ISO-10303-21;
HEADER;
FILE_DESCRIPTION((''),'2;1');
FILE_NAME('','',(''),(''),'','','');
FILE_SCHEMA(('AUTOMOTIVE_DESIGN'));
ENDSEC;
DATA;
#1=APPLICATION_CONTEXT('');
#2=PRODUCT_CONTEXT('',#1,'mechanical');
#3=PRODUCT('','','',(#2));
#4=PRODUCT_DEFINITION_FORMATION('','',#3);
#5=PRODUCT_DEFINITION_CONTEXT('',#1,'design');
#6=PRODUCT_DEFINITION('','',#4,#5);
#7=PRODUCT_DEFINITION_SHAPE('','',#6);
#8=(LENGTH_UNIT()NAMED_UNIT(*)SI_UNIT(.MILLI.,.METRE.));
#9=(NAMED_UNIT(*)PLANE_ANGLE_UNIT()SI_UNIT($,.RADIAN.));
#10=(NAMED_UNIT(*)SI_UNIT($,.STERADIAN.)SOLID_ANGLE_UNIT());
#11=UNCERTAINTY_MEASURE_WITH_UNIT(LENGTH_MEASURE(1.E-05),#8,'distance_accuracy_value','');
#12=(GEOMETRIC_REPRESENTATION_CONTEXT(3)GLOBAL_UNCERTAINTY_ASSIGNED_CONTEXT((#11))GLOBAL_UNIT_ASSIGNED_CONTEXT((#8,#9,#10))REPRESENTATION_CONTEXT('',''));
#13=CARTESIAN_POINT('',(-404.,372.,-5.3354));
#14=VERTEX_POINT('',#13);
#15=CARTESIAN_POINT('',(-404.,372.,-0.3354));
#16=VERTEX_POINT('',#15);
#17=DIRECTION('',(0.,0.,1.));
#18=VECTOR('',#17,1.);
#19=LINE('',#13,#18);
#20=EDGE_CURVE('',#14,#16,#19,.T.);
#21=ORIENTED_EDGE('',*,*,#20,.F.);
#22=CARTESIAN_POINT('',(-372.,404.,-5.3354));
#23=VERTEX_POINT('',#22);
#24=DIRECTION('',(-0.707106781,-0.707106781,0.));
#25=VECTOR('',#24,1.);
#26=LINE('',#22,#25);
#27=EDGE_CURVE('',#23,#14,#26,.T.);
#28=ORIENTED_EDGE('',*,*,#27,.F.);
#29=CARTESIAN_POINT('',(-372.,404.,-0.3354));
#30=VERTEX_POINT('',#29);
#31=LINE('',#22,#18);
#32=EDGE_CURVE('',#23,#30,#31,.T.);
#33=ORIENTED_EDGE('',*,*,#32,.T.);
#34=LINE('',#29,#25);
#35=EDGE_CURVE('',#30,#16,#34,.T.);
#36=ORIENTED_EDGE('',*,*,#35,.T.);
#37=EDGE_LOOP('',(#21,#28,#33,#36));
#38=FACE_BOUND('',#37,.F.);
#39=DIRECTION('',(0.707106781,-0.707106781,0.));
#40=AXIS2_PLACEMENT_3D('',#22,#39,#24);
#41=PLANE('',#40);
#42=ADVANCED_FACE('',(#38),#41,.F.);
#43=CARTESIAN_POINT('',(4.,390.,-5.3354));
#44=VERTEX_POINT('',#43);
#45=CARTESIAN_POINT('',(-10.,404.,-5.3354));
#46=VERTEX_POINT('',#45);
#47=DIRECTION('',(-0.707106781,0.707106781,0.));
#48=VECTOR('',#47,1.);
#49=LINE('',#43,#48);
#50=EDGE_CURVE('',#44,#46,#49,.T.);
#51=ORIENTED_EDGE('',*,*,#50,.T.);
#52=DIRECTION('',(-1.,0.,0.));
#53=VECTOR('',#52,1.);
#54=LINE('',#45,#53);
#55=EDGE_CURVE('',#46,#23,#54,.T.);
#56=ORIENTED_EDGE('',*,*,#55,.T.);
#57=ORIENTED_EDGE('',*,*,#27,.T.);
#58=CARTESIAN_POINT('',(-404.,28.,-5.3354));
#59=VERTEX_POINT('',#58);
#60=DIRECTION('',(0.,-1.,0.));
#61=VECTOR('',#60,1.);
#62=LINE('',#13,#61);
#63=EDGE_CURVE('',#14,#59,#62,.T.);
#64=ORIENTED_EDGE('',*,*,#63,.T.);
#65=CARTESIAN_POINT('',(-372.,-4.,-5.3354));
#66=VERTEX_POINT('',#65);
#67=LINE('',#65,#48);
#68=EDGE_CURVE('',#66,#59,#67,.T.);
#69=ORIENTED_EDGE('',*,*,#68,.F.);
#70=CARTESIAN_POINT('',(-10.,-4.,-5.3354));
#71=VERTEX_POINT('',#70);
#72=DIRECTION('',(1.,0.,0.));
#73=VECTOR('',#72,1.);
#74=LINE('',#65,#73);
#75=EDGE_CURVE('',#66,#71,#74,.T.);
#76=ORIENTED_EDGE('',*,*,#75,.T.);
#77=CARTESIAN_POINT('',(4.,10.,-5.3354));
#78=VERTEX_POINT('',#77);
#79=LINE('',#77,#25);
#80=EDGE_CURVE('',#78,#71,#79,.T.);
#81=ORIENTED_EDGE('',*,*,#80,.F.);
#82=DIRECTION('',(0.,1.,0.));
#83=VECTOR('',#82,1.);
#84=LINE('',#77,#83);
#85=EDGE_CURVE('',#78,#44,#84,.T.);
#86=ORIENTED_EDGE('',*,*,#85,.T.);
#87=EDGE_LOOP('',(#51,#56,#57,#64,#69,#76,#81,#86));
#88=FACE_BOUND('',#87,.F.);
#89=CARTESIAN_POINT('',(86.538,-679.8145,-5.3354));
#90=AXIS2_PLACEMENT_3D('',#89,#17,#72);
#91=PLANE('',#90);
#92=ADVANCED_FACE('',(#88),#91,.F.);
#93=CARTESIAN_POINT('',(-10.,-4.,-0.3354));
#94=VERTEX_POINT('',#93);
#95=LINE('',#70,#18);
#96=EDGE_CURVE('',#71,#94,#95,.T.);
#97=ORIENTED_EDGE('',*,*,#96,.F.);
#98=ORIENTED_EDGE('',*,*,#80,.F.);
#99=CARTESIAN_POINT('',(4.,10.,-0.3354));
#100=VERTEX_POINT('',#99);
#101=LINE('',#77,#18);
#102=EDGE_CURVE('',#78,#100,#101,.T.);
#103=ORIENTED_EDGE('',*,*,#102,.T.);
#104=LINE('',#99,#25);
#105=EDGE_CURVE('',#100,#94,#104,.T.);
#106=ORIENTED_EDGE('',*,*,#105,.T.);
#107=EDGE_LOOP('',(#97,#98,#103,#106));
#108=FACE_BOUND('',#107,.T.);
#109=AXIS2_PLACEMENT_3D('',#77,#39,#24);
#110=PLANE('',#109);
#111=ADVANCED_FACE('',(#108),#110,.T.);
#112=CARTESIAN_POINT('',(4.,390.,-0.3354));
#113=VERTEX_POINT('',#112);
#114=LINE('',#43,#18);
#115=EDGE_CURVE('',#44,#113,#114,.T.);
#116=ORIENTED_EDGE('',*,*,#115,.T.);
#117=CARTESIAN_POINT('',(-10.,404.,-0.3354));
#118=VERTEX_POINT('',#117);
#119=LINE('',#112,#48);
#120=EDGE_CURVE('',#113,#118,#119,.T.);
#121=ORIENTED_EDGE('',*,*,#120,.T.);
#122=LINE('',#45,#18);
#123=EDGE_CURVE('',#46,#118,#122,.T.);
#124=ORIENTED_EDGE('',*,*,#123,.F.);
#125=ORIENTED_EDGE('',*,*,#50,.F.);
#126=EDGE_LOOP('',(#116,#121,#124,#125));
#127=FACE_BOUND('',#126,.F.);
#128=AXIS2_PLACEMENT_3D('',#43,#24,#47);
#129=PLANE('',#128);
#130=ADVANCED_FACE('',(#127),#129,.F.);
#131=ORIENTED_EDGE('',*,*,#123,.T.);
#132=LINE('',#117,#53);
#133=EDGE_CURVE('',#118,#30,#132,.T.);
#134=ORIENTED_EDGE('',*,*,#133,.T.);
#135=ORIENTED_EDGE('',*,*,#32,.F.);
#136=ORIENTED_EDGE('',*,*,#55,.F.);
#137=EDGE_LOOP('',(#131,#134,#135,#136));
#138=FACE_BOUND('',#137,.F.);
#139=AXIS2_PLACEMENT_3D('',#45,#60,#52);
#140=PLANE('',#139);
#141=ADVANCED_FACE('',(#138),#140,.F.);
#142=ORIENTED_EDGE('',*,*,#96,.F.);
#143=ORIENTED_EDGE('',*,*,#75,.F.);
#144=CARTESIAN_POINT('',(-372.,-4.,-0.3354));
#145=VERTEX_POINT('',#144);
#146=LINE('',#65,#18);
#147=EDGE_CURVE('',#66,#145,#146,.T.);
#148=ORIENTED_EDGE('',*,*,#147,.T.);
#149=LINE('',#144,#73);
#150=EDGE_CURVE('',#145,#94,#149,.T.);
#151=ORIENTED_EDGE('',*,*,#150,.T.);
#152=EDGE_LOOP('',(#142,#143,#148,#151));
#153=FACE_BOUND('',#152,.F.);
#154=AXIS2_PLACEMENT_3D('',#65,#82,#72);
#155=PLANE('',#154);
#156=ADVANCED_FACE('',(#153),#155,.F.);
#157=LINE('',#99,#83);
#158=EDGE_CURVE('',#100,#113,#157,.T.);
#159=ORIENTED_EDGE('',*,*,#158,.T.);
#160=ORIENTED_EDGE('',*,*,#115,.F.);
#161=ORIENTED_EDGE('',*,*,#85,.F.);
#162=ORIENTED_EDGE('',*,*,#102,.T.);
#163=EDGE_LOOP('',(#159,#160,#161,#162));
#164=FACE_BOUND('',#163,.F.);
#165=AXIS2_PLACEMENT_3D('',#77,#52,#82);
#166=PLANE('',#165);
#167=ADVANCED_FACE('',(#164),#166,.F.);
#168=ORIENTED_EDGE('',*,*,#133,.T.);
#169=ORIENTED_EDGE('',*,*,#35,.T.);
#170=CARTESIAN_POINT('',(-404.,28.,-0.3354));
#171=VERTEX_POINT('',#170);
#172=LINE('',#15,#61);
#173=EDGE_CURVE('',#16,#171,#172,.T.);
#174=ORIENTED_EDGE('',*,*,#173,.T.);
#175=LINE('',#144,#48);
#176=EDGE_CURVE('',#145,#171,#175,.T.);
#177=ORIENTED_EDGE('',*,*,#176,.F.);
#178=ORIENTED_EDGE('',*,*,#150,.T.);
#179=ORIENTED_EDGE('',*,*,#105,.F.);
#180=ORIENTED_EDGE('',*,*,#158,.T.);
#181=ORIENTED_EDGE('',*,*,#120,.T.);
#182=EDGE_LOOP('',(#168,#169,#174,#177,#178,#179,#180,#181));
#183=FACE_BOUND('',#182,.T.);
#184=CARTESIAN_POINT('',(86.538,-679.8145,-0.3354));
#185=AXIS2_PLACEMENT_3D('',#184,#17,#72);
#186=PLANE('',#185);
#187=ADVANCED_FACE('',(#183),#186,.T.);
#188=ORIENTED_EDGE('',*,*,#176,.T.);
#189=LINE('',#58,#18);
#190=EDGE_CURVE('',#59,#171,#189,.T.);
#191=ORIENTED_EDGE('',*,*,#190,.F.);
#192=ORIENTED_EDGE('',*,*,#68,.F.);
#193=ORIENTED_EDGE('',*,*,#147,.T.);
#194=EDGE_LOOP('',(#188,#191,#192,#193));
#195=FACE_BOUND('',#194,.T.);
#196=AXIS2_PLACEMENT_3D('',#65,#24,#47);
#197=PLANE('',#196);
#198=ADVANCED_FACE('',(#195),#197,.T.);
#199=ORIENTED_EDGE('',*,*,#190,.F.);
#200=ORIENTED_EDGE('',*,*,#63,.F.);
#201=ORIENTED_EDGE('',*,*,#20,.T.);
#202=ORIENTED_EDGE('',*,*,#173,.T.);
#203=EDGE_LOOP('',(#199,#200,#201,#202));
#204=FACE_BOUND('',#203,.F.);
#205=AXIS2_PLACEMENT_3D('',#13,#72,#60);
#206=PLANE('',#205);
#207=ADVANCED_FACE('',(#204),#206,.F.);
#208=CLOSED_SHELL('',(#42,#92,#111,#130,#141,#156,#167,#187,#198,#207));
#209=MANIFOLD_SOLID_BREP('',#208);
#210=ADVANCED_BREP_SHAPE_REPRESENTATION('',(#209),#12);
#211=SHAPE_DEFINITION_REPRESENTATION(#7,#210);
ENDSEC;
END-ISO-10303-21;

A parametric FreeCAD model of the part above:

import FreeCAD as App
import Part
import Sketcher
from FreeCAD import Vector

doc = App.newDocument("Part")
body = doc.addObject("PartDesign::Body", "Body")

sketch1 = body.newObject("Sketcher::SketchObject", "Sketch")
sketch1.AttachmentSupport = (doc.getObject("XY_Plane"), [""])
sketch1.MapMode = "FlatFace"
sketch1.AttachmentOffset = App.Placement(Vector(0, 0, -5.3354), App.Rotation())
sketch1.addGeometry(Part.LineSegment(Vector(-10, 404, 0), Vector(-372, 404, 0)), False)
sketch1.addGeometry(Part.LineSegment(Vector(-372, 404, 0), Vector(-404, 372, 0)), False)
sketch1.addGeometry(Part.LineSegment(Vector(-404, 372, 0), Vector(-404, 28, 0)), False)
sketch1.addGeometry(Part.LineSegment(Vector(-404, 28, 0), Vector(-372, -4, 0)), False)
sketch1.addGeometry(Part.LineSegment(Vector(-372, -4, 0), Vector(-10, -4, 0)), False)
sketch1.addGeometry(Part.LineSegment(Vector(-10, -4, 0), Vector(4, 10, 0)), False)
sketch1.addGeometry(Part.LineSegment(Vector(4, 10, 0), Vector(4, 390, 0)), False)
sketch1.addGeometry(Part.LineSegment(Vector(4, 390, 0), Vector(-10, 404, 0)), False)
sketch1.addConstraint(Sketcher.Constraint("Coincident", 0, 2, 1, 1))
sketch1.addConstraint(Sketcher.Constraint("Coincident", 1, 2, 2, 1))
sketch1.addConstraint(Sketcher.Constraint("Coincident", 2, 2, 3, 1))
sketch1.addConstraint(Sketcher.Constraint("Coincident", 3, 2, 4, 1))
sketch1.addConstraint(Sketcher.Constraint("Coincident", 4, 2, 5, 1))
sketch1.addConstraint(Sketcher.Constraint("Coincident", 5, 2, 6, 1))
sketch1.addConstraint(Sketcher.Constraint("Coincident", 6, 2, 7, 1))
sketch1.addConstraint(Sketcher.Constraint("Coincident", 7, 2, 0, 1))
sketch1.addConstraint(Sketcher.Constraint("Horizontal", 0))
sketch1.addConstraint(Sketcher.Constraint("Vertical", 2))
sketch1.addConstraint(Sketcher.Constraint("Horizontal", 4))
sketch1.addConstraint(Sketcher.Constraint("Vertical", 6))
sketch1.addConstraint(Sketcher.Constraint("Perpendicular", 1, 3))
sketch1.addConstraint(Sketcher.Constraint("Perpendicular", 3, 5))
sketch1.addConstraint(Sketcher.Constraint("Perpendicular", 5, 7))
sketch1.addConstraint(Sketcher.Constraint("Vertical", 0, 2, 3, 2))
sketch1.addConstraint(Sketcher.Constraint("Vertical", 4, 2, 7, 2))
sketch1.addConstraint(Sketcher.Constraint("Equal", 1, 3))
sketch1.addConstraint(Sketcher.Constraint("DistanceY", -1, 1, 2, 2, 28.0))
sketch1.addConstraint(Sketcher.Constraint("DistanceY", 3, 2, -1, 1, 4.0))
sketch1.addConstraint(Sketcher.Constraint("DistanceX", 4, 2, -1, 1, 10.0))
sketch1.addConstraint(Sketcher.Constraint("DistanceX", -1, 1, 5, 2, 4.0))
sketch1.addConstraint(Sketcher.Constraint("DistanceX", 0, 2, 0, 1, 362.0))
sketch1.addConstraint(Sketcher.Constraint("DistanceY", 2, 2, 2, 1, 344.0))
pad1 = body.newObject("PartDesign::Pad", "Pad")
pad1.Profile = sketch1
pad1.Length = 5

doc.recompute()
